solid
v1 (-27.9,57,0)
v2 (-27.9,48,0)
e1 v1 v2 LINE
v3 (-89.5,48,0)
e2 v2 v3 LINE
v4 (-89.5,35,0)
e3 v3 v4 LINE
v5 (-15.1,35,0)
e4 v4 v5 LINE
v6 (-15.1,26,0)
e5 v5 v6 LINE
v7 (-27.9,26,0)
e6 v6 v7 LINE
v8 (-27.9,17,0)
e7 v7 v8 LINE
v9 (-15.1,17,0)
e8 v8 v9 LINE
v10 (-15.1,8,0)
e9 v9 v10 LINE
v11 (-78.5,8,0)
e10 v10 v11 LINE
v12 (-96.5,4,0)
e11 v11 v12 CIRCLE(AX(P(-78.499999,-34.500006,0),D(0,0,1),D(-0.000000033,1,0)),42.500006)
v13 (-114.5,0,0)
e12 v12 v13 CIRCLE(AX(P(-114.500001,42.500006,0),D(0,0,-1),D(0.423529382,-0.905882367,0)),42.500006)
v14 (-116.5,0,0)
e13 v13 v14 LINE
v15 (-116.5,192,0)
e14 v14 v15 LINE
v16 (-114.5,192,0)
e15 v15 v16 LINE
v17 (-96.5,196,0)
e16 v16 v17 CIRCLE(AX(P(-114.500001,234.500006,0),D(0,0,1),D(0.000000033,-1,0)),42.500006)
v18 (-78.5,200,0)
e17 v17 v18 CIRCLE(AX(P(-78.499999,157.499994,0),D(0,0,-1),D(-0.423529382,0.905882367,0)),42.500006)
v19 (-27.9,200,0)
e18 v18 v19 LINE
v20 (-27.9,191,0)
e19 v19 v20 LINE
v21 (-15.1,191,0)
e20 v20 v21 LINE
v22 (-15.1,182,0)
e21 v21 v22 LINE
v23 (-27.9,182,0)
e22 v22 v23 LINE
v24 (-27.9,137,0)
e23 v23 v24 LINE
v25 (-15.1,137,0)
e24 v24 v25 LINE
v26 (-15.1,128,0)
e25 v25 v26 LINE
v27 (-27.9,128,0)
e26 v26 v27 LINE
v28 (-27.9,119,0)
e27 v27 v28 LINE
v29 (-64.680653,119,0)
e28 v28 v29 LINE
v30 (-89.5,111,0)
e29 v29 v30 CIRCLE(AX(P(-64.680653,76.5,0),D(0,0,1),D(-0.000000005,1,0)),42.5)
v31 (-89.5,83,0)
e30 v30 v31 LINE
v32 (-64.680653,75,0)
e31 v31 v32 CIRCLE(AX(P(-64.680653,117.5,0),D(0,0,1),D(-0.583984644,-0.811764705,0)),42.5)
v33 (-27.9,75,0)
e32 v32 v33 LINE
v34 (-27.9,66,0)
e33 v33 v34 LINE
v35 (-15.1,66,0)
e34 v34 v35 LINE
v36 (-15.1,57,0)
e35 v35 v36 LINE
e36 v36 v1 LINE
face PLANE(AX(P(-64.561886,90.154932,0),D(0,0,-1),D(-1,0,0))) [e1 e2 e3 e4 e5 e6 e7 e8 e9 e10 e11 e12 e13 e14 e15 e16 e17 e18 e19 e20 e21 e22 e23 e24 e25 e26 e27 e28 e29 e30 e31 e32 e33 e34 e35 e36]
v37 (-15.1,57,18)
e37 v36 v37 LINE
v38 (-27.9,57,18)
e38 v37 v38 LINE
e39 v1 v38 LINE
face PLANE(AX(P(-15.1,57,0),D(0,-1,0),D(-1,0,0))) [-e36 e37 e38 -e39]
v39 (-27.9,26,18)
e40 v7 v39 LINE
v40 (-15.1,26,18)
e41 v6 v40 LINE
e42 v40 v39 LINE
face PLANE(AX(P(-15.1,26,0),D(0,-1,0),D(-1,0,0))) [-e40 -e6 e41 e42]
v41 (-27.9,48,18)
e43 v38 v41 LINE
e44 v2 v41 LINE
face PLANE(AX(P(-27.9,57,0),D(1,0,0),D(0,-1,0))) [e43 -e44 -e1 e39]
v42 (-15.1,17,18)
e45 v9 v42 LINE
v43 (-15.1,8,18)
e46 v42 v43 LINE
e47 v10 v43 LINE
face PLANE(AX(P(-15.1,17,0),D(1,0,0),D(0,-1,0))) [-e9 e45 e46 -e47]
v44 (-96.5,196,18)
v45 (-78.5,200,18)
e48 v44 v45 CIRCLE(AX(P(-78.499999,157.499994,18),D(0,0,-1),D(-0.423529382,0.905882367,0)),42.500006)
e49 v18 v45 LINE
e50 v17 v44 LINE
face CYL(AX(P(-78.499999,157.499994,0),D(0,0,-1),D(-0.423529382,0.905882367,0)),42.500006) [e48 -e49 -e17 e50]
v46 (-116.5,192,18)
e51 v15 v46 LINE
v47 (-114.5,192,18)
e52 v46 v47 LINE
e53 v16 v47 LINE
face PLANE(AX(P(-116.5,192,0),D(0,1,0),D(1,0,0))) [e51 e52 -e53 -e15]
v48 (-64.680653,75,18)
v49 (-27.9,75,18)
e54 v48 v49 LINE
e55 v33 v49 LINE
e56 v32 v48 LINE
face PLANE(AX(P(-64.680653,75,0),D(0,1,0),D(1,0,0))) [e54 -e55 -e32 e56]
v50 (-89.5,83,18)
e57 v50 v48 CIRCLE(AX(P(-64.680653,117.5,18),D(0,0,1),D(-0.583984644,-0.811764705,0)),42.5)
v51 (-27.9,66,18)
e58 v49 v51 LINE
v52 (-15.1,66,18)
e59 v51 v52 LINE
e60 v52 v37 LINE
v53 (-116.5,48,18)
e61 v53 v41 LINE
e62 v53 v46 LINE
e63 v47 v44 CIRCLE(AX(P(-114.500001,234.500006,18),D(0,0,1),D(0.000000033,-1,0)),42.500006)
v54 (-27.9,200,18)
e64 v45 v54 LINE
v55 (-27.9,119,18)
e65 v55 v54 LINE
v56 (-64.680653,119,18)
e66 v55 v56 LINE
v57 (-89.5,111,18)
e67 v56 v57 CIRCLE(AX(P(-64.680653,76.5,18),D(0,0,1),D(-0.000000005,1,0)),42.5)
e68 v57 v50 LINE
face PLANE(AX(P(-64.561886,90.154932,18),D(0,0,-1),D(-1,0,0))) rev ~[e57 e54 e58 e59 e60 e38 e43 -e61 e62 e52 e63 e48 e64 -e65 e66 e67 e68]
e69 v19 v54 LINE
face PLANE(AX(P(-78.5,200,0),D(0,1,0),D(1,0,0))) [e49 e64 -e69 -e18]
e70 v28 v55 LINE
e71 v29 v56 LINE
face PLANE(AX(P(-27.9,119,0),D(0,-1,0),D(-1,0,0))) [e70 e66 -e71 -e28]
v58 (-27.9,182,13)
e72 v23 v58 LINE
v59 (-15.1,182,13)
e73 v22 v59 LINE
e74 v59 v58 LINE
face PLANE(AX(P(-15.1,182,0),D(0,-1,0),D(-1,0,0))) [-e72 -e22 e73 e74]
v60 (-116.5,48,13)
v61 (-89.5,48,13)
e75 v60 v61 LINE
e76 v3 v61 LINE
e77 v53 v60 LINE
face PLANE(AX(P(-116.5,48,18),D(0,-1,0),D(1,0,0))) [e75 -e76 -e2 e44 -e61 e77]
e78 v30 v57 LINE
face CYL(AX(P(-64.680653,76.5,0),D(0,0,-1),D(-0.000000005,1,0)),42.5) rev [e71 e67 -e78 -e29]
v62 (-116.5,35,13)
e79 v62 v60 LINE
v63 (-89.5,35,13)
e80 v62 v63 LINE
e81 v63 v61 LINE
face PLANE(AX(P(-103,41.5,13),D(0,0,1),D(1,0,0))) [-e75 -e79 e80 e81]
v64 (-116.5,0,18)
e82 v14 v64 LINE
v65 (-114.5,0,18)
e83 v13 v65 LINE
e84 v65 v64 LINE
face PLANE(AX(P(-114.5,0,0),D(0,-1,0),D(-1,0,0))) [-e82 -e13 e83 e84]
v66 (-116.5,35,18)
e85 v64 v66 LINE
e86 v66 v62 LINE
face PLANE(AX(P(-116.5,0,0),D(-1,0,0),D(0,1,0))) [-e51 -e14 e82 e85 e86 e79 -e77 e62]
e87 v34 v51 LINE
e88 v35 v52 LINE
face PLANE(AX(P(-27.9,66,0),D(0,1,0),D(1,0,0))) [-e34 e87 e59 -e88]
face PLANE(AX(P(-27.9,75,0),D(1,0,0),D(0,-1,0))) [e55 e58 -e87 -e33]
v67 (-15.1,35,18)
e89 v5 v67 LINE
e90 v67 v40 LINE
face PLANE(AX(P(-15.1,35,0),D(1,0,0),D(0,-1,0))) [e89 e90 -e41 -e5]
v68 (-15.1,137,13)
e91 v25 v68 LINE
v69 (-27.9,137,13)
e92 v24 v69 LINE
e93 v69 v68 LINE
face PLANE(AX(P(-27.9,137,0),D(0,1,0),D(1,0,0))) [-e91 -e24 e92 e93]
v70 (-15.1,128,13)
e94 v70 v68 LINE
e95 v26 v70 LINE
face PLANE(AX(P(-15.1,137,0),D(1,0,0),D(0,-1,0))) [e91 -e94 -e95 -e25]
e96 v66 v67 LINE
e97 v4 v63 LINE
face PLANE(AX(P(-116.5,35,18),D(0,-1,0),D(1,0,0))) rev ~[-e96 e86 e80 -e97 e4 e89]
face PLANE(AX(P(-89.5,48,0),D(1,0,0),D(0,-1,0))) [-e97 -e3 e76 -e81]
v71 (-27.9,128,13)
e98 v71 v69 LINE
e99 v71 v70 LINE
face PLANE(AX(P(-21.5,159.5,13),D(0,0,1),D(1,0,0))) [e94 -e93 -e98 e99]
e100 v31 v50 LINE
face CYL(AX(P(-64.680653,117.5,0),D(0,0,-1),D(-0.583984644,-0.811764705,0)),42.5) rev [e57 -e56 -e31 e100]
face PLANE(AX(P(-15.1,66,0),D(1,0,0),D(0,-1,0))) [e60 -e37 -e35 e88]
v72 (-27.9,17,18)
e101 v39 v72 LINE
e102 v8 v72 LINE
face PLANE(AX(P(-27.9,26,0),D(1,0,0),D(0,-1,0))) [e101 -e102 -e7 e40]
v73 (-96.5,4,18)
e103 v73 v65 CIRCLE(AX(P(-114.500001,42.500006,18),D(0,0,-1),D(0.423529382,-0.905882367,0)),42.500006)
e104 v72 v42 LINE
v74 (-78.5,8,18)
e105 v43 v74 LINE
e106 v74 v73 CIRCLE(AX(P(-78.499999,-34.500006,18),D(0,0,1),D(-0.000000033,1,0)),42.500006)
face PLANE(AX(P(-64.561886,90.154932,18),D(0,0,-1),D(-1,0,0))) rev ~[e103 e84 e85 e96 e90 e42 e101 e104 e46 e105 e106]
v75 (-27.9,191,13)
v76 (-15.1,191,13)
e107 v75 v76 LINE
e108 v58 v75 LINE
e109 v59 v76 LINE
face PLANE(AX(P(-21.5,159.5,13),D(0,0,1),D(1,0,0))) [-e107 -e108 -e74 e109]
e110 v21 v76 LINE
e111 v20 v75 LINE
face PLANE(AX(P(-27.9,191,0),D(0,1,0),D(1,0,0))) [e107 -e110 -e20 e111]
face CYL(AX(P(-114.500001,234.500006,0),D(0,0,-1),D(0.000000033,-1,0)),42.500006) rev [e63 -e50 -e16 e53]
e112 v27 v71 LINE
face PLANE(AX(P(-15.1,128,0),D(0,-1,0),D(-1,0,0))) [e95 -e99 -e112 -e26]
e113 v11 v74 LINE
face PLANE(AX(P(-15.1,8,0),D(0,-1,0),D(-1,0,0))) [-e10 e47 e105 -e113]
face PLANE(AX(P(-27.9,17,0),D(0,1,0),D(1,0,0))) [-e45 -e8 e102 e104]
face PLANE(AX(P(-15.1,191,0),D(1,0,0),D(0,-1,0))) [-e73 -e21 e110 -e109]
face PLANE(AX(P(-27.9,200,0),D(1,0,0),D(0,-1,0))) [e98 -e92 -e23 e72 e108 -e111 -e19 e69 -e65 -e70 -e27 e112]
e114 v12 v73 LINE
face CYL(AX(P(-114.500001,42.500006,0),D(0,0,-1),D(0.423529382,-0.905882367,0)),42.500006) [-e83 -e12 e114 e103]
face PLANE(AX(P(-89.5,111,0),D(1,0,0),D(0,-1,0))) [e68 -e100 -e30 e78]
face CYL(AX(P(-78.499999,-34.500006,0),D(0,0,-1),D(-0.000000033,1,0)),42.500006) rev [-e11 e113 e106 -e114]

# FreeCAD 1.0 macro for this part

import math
import FreeCAD as App
import Part
import Sketcher
from FreeCAD import Vector
Q = App.Units.Quantity

doc = App.newDocument("Part")
body = doc.addObject("PartDesign::Body", "Body")

# Sketch on YZ plane
sketch1 = doc.addObject("Sketcher::SketchObject", "Sketch")
body.addObject(sketch1)
sketch1.AttachmentSupport = (doc.YZ_Plane, [""])
sketch1.MapMode = "FlatFace"
sketch1.addGeometry(Part.LineSegment(Vector(-93, 192, 0), Vector(-95, 192, 0)), False)
sketch1.addGeometry(Part.LineSegment(Vector(-95, 192, 0), Vector(-95, 0, 0)), False)
sketch1.addGeometry(Part.LineSegment(Vector(-95, 0, 0), Vector(-93, 0, 0)), False)
sketch1.addGeometry(Part.ArcOfCircle(Part.Circle(Vector(-93.000001, 42.500006, 0), Vector(0, 0, 1), 42.500006), math.radians(-89.999998), math.radians(-64.942386)), False)
sketch1.addGeometry(Part.ArcOfCircle(Part.Circle(Vector(-56.999999, -34.500006, 0), Vector(0, 0, 1), 42.500006), math.radians(90.000002), math.radians(115.057614)), False)
sketch1.addGeometry(Part.LineSegment(Vector(-57, 8, 0), Vector(6.4, 8, 0)), False)
sketch1.addGeometry(Part.LineSegment(Vector(6.4, 8, 0), Vector(6.4, 17, 0)), False)
sketch1.addGeometry(Part.LineSegment(Vector(6.4, 17, 0), Vector(-6.4, 17, 0)), False)
sketch1.addGeometry(Part.LineSegment(Vector(-6.4, 17, 0), Vector(-6.4, 26, 0)), False)
sketch1.addGeometry(Part.LineSegment(Vector(-6.4, 26, 0), Vector(6.4, 26, 0)), False)
sketch1.addGeometry(Part.LineSegment(Vector(6.4, 26, 0), Vector(6.4, 35, 0)), False)
sketch1.addGeometry(Part.LineSegment(Vector(6.4, 35, 0), Vector(-68, 35, 0)), False)
sketch1.addGeometry(Part.LineSegment(Vector(-68, 35, 0), Vector(-68, 48, 0)), False)
sketch1.addGeometry(Part.LineSegment(Vector(-68, 48, 0), Vector(-6.4, 48, 0)), False)
sketch1.addGeometry(Part.LineSegment(Vector(-6.4, 48, 0), Vector(-6.4, 57, 0)), False)
sketch1.addGeometry(Part.LineSegment(Vector(-6.4, 57, 0), Vector(6.4, 57, 0)), False)
sketch1.addGeometry(Part.LineSegment(Vector(6.4, 57, 0), Vector(6.4, 66, 0)), False)
sketch1.addGeometry(Part.LineSegment(Vector(6.4, 66, 0), Vector(-6.4, 66, 0)), False)
sketch1.addGeometry(Part.LineSegment(Vector(-6.4, 66, 0), Vector(-6.4, 75, 0)), False)
sketch1.addGeometry(Part.LineSegment(Vector(-6.4, 75, 0), Vector(-43.180653, 75, 0)), False)
sketch1.addGeometry(Part.ArcOfCircle(Part.Circle(Vector(-43.180653, 117.5, 0), Vector(0, 0, 1), 42.5), math.radians(-125.731292), math.radians(-90)), False)
sketch1.addGeometry(Part.LineSegment(Vector(-68, 83, 0), Vector(-68, 111, 0)), False)
sketch1.addGeometry(Part.ArcOfCircle(Part.Circle(Vector(-43.180653, 76.5, 0), Vector(0, 0, 1), 42.5), math.radians(90), math.radians(125.731292)), False)
sketch1.addGeometry(Part.LineSegment(Vector(-43.180653, 119, 0), Vector(-6.4, 119, 0)), False)
sketch1.addGeometry(Part.LineSegment(Vector(-6.4, 119, 0), Vector(-6.4, 128, 0)), False)
sketch1.addGeometry(Part.LineSegment(Vector(-6.4, 128, 0), Vector(6.4, 128, 0)), False)
sketch1.addGeometry(Part.LineSegment(Vector(6.4, 128, 0), Vector(6.4, 137, 0)), False)
sketch1.addGeometry(Part.LineSegment(Vector(6.4, 137, 0), Vector(-6.4, 137, 0)), False)
sketch1.addGeometry(Part.LineSegment(Vector(-6.4, 137, 0), Vector(-6.4, 182, 0)), False)
sketch1.addGeometry(Part.LineSegment(Vector(-6.4, 182, 0), Vector(6.4, 182, 0)), False)
sketch1.addGeometry(Part.LineSegment(Vector(6.4, 182, 0), Vector(6.4, 191, 0)), False)
sketch1.addGeometry(Part.LineSegment(Vector(6.4, 191, 0), Vector(-6.4, 191, 0)), False)
sketch1.addGeometry(Part.LineSegment(Vector(-6.4, 191, 0), Vector(-6.4, 200, 0)), False)
sketch1.addGeometry(Part.LineSegment(Vector(-6.4, 200, 0), Vector(-57, 200, 0)), False)
sketch1.addGeometry(Part.ArcOfCircle(Part.Circle(Vector(-56.999999, 157.499994, 0), Vector(0, 0, 1), 42.500006), math.radians(90.000002), math.radians(115.057614)), False)
sketch1.addGeometry(Part.ArcOfCircle(Part.Circle(Vector(-93.000001, 234.500006, 0), Vector(0, 0, 1), 42.500006), math.radians(-89.999998), math.radians(-64.942386)), False)
sketch1.addConstraint(Sketcher.Constraint("Coincident", 0, 2, 1, 1))
sketch1.addConstraint(Sketcher.Constraint("Coincident", 1, 2, 2, 1))
sketch1.addConstraint(Sketcher.Constraint("Tangent", 2, 2, 3, 1))
sketch1.addConstraint(Sketcher.Constraint("Tangent", 3, 2, 4, 2))
sketch1.addConstraint(Sketcher.Constraint("Tangent", 4, 1, 5, 1))
sketch1.addConstraint(Sketcher.Constraint("Coincident", 5, 2, 6, 1))
sketch1.addConstraint(Sketcher.Constraint("Coincident", 6, 2, 7, 1))
sketch1.addConstraint(Sketcher.Constraint("Coincident", 7, 2, 8, 1))
sketch1.addConstraint(Sketcher.Constraint("Coincident", 8, 2, 9, 1))
sketch1.addConstraint(Sketcher.Constraint("Coincident", 9, 2, 10, 1))
sketch1.addConstraint(Sketcher.Constraint("Coincident", 10, 2, 11, 1))
sketch1.addConstraint(Sketcher.Constraint("Coincident", 11, 2, 12, 1))
sketch1.addConstraint(Sketcher.Constraint("Coincident", 12, 2, 13, 1))
sketch1.addConstraint(Sketcher.Constraint("Coincident", 13, 2, 14, 1))
sketch1.addConstraint(Sketcher.Constraint("Coincident", 14, 2, 15, 1))
sketch1.addConstraint(Sketcher.Constraint("Coincident", 15, 2, 16, 1))
sketch1.addConstraint(Sketcher.Constraint("Coincident", 16, 2, 17, 1))
sketch1.addConstraint(Sketcher.Constraint("Coincident", 17, 2, 18, 1))
sketch1.addConstraint(Sketcher.Constraint("Coincident", 18, 2, 19, 1))
sketch1.addConstraint(Sketcher.Constraint("Tangent", 19, 2, 20, 2))
sketch1.addConstraint(Sketcher.Constraint("Coincident", 20, 1, 21, 1))
sketch1.addConstraint(Sketcher.Constraint("Coincident", 21, 2, 22, 2))
sketch1.addConstraint(Sketcher.Constraint("Tangent", 22, 1, 23, 1))
sketch1.addConstraint(Sketcher.Constraint("Coincident", 23, 2, 24, 1))
sketch1.addConstraint(Sketcher.Constraint("Coincident", 24, 2, 25, 1))
sketch1.addConstraint(Sketcher.Constraint("Coincident", 25, 2, 26, 1))
sketch1.addConstraint(Sketcher.Constraint("Coincident", 26, 2, 27, 1))
sketch1.addConstraint(Sketcher.Constraint("Coincident", 27, 2, 28, 1))
sketch1.addConstraint(Sketcher.Constraint("Coincident", 28, 2, 29, 1))
sketch1.addConstraint(Sketcher.Constraint("Coincident", 29, 2, 30, 1))
sketch1.addConstraint(Sketcher.Constraint("Coincident", 30, 2, 31, 1))
sketch1.addConstraint(Sketcher.Constraint("Coincident", 31, 2, 32, 1))
sketch1.addConstraint(Sketcher.Constraint("Coincident", 32, 2, 33, 1))
sketch1.addConstraint(Sketcher.Constraint("Tangent", 33, 2, 34, 1))
sketch1.addConstraint(Sketcher.Constraint("Tangent", 34, 2, 35, 2))
sketch1.addConstraint(Sketcher.Constraint("Tangent", 35, 1, 0, 1))
sketch1.addConstraint(Sketcher.Constraint("Horizontal", 0))
sketch1.addConstraint(Sketcher.Constraint("Vertical", 1))
sketch1.addConstraint(Sketcher.Constraint("Horizontal", 2))
sketch1.addConstraint(Sketcher.Constraint("Horizontal", 5))
sketch1.addConstraint(Sketcher.Constraint("Vertical", 6))
sketch1.addConstraint(Sketcher.Constraint("Horizontal", 7))
sketch1.addConstraint(Sketcher.Constraint("Vertical", 8))
sketch1.addConstraint(Sketcher.Constraint("Horizontal", 9))
sketch1.addConstraint(Sketcher.Constraint("Vertical", 10))
sketch1.addConstraint(Sketcher.Constraint("Horizontal", 11))
sketch1.addConstraint(Sketcher.Constraint("Vertical", 12))
sketch1.addConstraint(Sketcher.Constraint("Horizontal", 13))
sketch1.addConstraint(Sketcher.Constraint("Vertical", 14))
sketch1.addConstraint(Sketcher.Constraint("Horizontal", 15))
sketch1.addConstraint(Sketcher.Constraint("Vertical", 16))
sketch1.addConstraint(Sketcher.Constraint("Horizontal", 17))
sketch1.addConstraint(Sketcher.Constraint("Vertical", 18))
sketch1.addConstraint(Sketcher.Constraint("Horizontal", 19))
sketch1.addConstraint(Sketcher.Constraint("Vertical", 21))
sketch1.addConstraint(Sketcher.Constraint("Horizontal", 23))
sketch1.addConstraint(Sketcher.Constraint("Vertical", 24))
sketch1.addConstraint(Sketcher.Constraint("Horizontal", 25))
sketch1.addConstraint(Sketcher.Constraint("Vertical", 26))
sketch1.addConstraint(Sketcher.Constraint("Horizontal", 27))
sketch1.addConstraint(Sketcher.Constraint("Vertical", 28))
sketch1.addConstraint(Sketcher.Constraint("Horizontal", 29))
sketch1.addConstraint(Sketcher.Constraint("Vertical", 30))
sketch1.addConstraint(Sketcher.Constraint("Horizontal", 31))
sketch1.addConstraint(Sketcher.Constraint("Vertical", 32))
sketch1.addConstraint(Sketcher.Constraint("Horizontal", 33))
sketch1.addConstraint(Sketcher.Constraint("Equal", 3, 4))
sketch1.addConstraint(Sketcher.Constraint("Equal", 20, 22))
sketch1.addConstraint(Sketcher.Constraint("Equal", 4, 34))
sketch1.addConstraint(Sketcher.Constraint("Equal", 34, 35))
sketch1.addConstraint(Sketcher.Constraint("PointOnObject", 1, 2, -1))
sketch1.addConstraint(Sketcher.Constraint("Vertical", 20, 3, 22, 3))
sketch1.addConstraint(Sketcher.Constraint("Vertical", 4, 3, 34, 3))
sketch1.addConstraint(Sketcher.Constraint("Vertical", 3, 3, 35, 3))
sketch1.addConstraint(Sketcher.Constraint("Vertical", 6, 2, 9, 2))
sketch1.addConstraint(Sketcher.Constraint("Vertical", 8, 2, 13, 2))
sketch1.addConstraint(Sketcher.Constraint("Vertical", 10, 2, 15, 2))
sketch1.addConstraint(Sketcher.Constraint("Vertical", 14, 2, 17, 2))
sketch1.addConstraint(Sketcher.Constraint("Vertical", 12, 2, 20, 1))
sketch1.addConstraint(Sketcher.Constraint("Vertical", 18, 2, 23, 2))
sketch1.addConstraint(Sketcher.Constraint("Vertical", 16, 2, 25, 2))
sketch1.addConstraint(Sketcher.Constraint("Vertical", 24, 2, 27, 2))
sketch1.addConstraint(Sketcher.Constraint("Vertical", 26, 2, 29, 2))
sketch1.addConstraint(Sketcher.Constraint("Vertical", 28, 2, 31, 2))
sketch1.addConstraint(Sketcher.Constraint("Equal", 6, 8))
sketch1.addConstraint(Sketcher.Constraint("Equal", 8, 10))
sketch1.addConstraint(Sketcher.Constraint("Equal", 10, 14))
sketch1.addConstraint(Sketcher.Constraint("Equal", 14, 16))
sketch1.addConstraint(Sketcher.Constraint("Equal", 16, 18))
sketch1.addConstraint(Sketcher.Constraint("Equal", 18, 24))
sketch1.addConstraint(Sketcher.Constraint("Equal", 24, 26))
sketch1.addConstraint(Sketcher.Constraint("Equal", 26, 30))
sketch1.addConstraint(Sketcher.Constraint("Equal", 30, 32))
sketch1.addConstraint(Sketcher.Constraint("Radius", 20, Q("42.5 mm")))
sketch1.addConstraint(Sketcher.Constraint("DistanceX", 0, 2, 0, 1, Q("2 mm")))
sketch1.addConstraint(Sketcher.Constraint("DistanceY", 1, 2, 1, 1, Q("192 mm")))
sketch1.addConstraint(Sketcher.Constraint("DistanceY", 6, 1, 6, 2, Q("9 mm")))
sketch1.addConstraint(Sketcher.Constraint("DistanceY", 12, 1, 12, 2, Q("13 mm")))
sketch1.addConstraint(Sketcher.Constraint("DistanceY", 21, 1, 21, 2, Q("28 mm")))
sketch1.addConstraint(Sketcher.Constraint("DistanceY", 28, 1, 28, 2, Q("45 mm")))
sketch1.addConstraint(Sketcher.Constraint("DistanceX", 5, 1, 5, 2, Q("63.4 mm")))
sketch1.addConstraint(Sketcher.Constraint("DistanceX", 7, 2, 7, 1, Q("12.8 mm")))
sketch1.addConstraint(Sketcher.Constraint("DistanceX", 11, 2, 11, 1, Q("74.4 mm")))
sketch1.addConstraint(Sketcher.Constraint("DistanceX", 3, 3, -1, 1, Q("93.000001 mm")))
sketch1.addConstraint(Sketcher.Constraint("DistanceX", 4, 3, -1, 1, Q("56.999999 mm")))
sketch1.addConstraint(Sketcher.Constraint("DistanceY", -1, 1, 4, 1, Q("8 mm")))
pad1 = doc.addObject("PartDesign::Pad", "Pad")
body.addObject(pad1)
pad1.Profile = sketch1
pad1.Length = 18

# Sketch on YZ plane
sketch2 = doc.addObject("Sketcher::SketchObject", "Sketch001")
body.addObject(sketch2)
sketch2.AttachmentSupport = (doc.YZ_Plane, [""])
sketch2.MapMode = "FlatFace"
sketch2.AttachmentOffset = App.Placement(Vector(0, 0, 18), App.Rotation())
sketch2.addGeometry(Part.LineSegment(Vector(-6.4, 191, 0), Vector(-6.4, 128, 0)), False)
sketch2.addGeometry(Part.LineSegment(Vector(-6.4, 128, 0), Vector(6.4, 128, 0)), False)
sketch2.addGeometry(Part.LineSegment(Vector(6.4, 128, 0), Vector(6.4, 191, 0)), False)
sketch2.addGeometry(Part.LineSegment(Vector(6.4, 191, 0), Vector(-6.4, 191, 0)), False)
sketch2.addConstraint(Sketcher.Constraint("Coincident", 0, 2, 1, 1))
sketch2.addConstraint(Sketcher.Constraint("Coincident", 1, 2, 2, 1))
sketch2.addConstraint(Sketcher.Constraint("Coincident", 2, 2, 3, 1))
sketch2.addConstraint(Sketcher.Constraint("Coincident", 3, 2, 0, 1))
sketch2.addConstraint(Sketcher.Constraint("Vertical", 0))
sketch2.addConstraint(Sketcher.Constraint("Horizontal", 1))
sketch2.addConstraint(Sketcher.Constraint("Vertical", 2))
sketch2.addConstraint(Sketcher.Constraint("Horizontal", 3))
sketch2.addConstraint(Sketcher.Constraint("DistanceY", 0, 2, 0, 1, Q("63 mm")))
sketch2.addConstraint(Sketcher.Constraint("DistanceX", 1, 1, 1, 2, Q("12.8 mm")))
sketch2.addConstraint(Sketcher.Constraint("DistanceY", -1, 1, 0, 2, Q("128 mm")))
sketch2.addConstraint(Sketcher.Constraint("DistanceX", 0, 2, -1, 1, Q("6.4 mm")))
pocket1 = doc.addObject("PartDesign::Pocket", "Pocket")
body.addObject(pocket1)
pocket1.Profile = sketch2
pocket1.Length = 5

# Sketch on YZ plane
sketch3 = doc.addObject("Sketcher::SketchObject", "Sketch002")
body.addObject(sketch3)
sketch3.AttachmentSupport = (doc.YZ_Plane, [""])
sketch3.MapMode = "FlatFace"
sketch3.AttachmentOffset = App.Placement(Vector(0, 0, 18), App.Rotation())
sketch3.addGeometry(Part.LineSegment(Vector(-95, 48, 0), Vector(-95, 35, 0)), False)
sketch3.addGeometry(Part.LineSegment(Vector(-95, 35, 0), Vector(-68, 35, 0)), False)
sketch3.addGeometry(Part.LineSegment(Vector(-68, 35, 0), Vector(-68, 48, 0)), False)
sketch3.addGeometry(Part.LineSegment(Vector(-68, 48, 0), Vector(-95, 48, 0)), False)
sketch3.addConstraint(Sketcher.Constraint("Coincident", 0, 2, 1, 1))
sketch3.addConstraint(Sketcher.Constraint("Coincident", 1, 2, 2, 1))
sketch3.addConstraint(Sketcher.Constraint("Coincident", 2, 2, 3, 1))
sketch3.addConstraint(Sketcher.Constraint("Coincident", 3, 2, 0, 1))
sketch3.addConstraint(Sketcher.Constraint("Vertical", 0))
sketch3.addConstraint(Sketcher.Constraint("Horizontal", 1))
sketch3.addConstraint(Sketcher.Constraint("Vertical", 2))
sketch3.addConstraint(Sketcher.Constraint("Horizontal", 3))
sketch3.addConstraint(Sketcher.Constraint("DistanceX", 1, 1, 1, 2, Q("27 mm")))
sketch3.addConstraint(Sketcher.Constraint("DistanceY", 0, 2, 0, 1, Q("13 mm")))
sketch3.addConstraint(Sketcher.Constraint("DistanceX", 0, 2, -1, 1, Q("95 mm")))
sketch3.addConstraint(Sketcher.Constraint("DistanceY", -1, 1, 0, 2, Q("35 mm")))
pocket2 = doc.addObject("PartDesign::Pocket", "Pocket001")
body.addObject(pocket2)
pocket2.Profile = sketch3
pocket2.Length = 5
body2 = doc.addObject("PartDesign::Body", "Body001")
doc.recompute()

body.Placement = App.Placement(Vector(0, 0, 0), App.Rotation(Vector(0, 1, 0), 270))
boolean = doc.addObject("PartDesign::Boolean", "Boolean")
body2.addObject(boolean)
boolean.Type = "Fuse"
boolean.addObjects([body])
body3 = doc.addObject("PartDesign::Body", "Body002")
doc.recompute()

body2.Placement = App.Placement(Vector(-21.5, 0, 0), App.Rotation(Vector(0, 0, 1), 270))
boolean2 = doc.addObject("PartDesign::Boolean", "Boolean001")
body3.addObject(boolean2)
boolean2.Type = "Fuse"
boolean2.addObjects([body2])

doc.recompute()
